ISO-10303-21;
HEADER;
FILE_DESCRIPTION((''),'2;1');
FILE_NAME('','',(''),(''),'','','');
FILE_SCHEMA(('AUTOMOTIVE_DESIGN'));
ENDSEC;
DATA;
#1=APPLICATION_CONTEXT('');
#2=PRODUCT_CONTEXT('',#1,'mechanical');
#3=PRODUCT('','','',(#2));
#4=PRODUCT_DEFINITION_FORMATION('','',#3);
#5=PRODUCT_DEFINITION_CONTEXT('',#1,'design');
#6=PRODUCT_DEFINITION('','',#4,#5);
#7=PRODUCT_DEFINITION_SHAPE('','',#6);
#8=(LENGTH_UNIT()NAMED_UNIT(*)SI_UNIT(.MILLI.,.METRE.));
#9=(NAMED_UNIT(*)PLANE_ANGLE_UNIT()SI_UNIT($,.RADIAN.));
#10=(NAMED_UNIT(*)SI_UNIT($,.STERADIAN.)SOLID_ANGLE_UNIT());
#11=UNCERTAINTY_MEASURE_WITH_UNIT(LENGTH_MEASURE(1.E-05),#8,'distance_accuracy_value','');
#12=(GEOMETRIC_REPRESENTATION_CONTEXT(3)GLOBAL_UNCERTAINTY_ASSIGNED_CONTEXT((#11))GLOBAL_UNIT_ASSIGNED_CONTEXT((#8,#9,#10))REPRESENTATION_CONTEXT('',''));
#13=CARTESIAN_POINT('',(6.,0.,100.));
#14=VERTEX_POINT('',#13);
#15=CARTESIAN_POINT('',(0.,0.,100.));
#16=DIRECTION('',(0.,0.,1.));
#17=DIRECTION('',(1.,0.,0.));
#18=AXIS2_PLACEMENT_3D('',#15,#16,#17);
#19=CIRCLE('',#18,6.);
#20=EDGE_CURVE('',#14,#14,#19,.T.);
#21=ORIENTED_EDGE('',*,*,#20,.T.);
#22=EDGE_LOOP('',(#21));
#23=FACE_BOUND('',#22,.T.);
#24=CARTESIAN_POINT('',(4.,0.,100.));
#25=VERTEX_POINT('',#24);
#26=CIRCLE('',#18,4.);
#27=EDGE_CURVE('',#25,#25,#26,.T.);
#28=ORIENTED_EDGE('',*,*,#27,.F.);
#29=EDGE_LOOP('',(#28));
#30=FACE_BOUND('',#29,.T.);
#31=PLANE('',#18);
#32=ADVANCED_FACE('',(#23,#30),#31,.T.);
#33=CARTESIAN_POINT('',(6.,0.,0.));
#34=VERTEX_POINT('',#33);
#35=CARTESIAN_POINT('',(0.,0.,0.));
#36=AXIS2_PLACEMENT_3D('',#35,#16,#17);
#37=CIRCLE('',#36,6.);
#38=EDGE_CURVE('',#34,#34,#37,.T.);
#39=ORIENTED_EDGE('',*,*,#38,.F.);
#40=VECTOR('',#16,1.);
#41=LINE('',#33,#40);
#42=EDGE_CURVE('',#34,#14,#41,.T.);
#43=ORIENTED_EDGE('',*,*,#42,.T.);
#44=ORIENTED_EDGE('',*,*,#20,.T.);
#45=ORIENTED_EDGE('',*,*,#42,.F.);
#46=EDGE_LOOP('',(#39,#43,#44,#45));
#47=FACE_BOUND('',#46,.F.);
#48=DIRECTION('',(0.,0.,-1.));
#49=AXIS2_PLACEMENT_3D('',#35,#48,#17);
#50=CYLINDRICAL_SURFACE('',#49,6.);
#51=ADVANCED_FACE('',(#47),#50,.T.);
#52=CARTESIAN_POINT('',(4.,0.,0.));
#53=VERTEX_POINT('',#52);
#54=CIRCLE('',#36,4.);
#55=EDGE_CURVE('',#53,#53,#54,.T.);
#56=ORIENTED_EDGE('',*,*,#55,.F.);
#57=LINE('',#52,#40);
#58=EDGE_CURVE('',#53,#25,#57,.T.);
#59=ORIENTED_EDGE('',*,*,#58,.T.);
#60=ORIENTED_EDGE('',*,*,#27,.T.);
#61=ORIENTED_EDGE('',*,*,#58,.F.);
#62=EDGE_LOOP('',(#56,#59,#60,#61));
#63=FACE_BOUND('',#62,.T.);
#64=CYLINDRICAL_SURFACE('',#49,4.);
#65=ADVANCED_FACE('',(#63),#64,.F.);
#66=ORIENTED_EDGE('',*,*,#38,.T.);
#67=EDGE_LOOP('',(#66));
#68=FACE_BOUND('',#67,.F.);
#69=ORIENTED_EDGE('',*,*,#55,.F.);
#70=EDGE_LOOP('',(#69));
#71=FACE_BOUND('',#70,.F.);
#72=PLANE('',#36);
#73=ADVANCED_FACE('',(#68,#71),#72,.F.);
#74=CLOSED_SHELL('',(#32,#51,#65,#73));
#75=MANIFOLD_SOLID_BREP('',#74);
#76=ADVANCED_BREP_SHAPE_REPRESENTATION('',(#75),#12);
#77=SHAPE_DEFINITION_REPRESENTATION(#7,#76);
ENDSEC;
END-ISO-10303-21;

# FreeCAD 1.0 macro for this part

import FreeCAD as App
import Part
import Sketcher

V = App.Vector
Q = App.Units.Quantity

doc = App.newDocument("Part")
body = doc.addObject("PartDesign::Body", "Body")

# Sketch on XY plane
sketch1 = body.newObject("Sketcher::SketchObject", "Sketch")
sketch1.AttachmentSupport = (doc.getObject("XY_Plane"), [""])
sketch1.MapMode = "FlatFace"
sketch1.addGeometry([
    Part.Circle(V(0, 0, 0), V(0, 0, 1), 6),
    Part.Circle(V(0, 0, 0), V(0, 0, 1), 4),
], False)
sketch1.addConstraint([
    Sketcher.Constraint("Coincident", 0, 3, -1, 1),
    Sketcher.Constraint("Coincident", 1, 3, -1, 1),
    Sketcher.Constraint("Diameter", 0, Q("12 mm")),
    Sketcher.Constraint("Diameter", 1, Q("8 mm")),
])
pad1 = body.newObject("PartDesign::Pad", "Pad")
pad1.Profile = sketch1
pad1.Length = 100

doc.recompute()
